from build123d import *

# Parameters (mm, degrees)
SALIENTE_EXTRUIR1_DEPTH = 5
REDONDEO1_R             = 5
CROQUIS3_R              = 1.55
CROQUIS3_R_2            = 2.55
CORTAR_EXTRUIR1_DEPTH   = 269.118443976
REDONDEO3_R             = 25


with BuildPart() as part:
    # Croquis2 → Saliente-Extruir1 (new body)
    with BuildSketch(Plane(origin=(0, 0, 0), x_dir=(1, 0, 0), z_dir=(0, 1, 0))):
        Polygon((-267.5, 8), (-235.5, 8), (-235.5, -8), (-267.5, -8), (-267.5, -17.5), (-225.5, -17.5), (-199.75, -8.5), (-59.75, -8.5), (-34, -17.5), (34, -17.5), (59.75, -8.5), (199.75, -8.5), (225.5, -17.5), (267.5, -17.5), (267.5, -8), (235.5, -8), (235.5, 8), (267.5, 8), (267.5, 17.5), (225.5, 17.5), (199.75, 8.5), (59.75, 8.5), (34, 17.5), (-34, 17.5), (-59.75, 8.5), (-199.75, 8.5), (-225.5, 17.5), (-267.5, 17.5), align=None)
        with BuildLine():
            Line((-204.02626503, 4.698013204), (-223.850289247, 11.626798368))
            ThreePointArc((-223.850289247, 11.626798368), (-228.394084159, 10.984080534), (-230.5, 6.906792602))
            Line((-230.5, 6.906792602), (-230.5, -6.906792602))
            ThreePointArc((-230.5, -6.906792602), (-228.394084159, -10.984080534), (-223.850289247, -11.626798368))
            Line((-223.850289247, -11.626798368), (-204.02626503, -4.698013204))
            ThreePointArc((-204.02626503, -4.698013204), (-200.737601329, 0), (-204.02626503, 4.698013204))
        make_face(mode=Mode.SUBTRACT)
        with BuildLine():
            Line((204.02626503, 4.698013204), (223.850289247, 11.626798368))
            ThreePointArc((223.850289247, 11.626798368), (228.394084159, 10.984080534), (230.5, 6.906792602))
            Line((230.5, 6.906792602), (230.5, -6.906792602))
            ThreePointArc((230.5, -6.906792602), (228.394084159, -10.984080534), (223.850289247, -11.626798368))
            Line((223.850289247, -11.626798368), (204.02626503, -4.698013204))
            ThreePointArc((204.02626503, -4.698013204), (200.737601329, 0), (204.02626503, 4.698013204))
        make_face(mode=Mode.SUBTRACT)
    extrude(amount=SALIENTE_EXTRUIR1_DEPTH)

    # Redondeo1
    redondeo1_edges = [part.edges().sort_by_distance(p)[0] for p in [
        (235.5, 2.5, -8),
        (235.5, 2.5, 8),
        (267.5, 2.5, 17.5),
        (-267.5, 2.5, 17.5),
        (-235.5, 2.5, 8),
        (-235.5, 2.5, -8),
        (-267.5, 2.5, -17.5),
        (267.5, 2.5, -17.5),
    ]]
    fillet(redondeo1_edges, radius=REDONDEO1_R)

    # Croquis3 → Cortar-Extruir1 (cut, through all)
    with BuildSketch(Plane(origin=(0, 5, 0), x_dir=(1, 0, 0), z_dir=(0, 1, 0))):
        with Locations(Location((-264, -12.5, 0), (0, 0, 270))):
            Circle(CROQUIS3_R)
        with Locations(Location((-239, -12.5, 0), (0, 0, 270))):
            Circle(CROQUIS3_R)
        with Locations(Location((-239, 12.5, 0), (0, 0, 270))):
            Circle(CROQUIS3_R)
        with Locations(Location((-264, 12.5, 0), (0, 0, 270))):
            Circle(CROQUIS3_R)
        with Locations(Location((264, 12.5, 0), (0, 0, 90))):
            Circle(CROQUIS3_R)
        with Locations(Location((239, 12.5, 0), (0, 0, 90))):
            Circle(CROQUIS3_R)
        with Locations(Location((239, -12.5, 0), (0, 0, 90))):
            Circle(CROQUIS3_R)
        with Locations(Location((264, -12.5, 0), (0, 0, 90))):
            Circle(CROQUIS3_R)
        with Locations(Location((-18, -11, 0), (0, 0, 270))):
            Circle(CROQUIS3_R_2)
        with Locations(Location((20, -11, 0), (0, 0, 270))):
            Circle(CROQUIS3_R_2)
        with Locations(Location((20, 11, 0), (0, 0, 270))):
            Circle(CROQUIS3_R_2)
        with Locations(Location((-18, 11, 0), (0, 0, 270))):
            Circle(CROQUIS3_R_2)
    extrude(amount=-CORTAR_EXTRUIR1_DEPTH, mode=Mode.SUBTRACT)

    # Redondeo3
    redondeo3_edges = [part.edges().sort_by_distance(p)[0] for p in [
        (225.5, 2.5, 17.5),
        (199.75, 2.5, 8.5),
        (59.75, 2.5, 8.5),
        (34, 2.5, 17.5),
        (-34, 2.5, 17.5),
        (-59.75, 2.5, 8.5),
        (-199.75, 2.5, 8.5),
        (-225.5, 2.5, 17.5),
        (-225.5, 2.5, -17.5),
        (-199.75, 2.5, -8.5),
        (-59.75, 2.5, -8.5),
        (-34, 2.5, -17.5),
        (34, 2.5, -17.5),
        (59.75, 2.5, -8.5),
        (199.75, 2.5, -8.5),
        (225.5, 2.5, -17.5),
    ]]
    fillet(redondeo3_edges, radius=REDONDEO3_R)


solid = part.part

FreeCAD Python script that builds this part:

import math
import FreeCAD as App
import Part
import Sketcher
from FreeCAD import Vector
Q = App.Units.Quantity


def edges_at(feature, points):
    """Names of the edges that pass closest to the given points."""
    edges = feature.Shape.Edges
    near = lambda p: min(range(len(edges)), key=lambda i: edges[i].distToShape(Part.Vertex(*p))[0])
    return sorted({f"Edge{near(p) + 1}" for p in points})


def add_polygon(sketch, points):
    """Adds a closed chain of lines whose ends are joined by coincident constraints."""
    first, n = sketch.GeometryCount, len(points)
    for a, b in zip(points, points[1:] + points[:1]):
        sketch.addGeometry(Part.LineSegment(App.Vector(*a, 0), App.Vector(*b, 0)), False)
    for i in range(n):
        sketch.addConstraint(Sketcher.Constraint("Coincident", first + i, 2, first + (i + 1) % n, 1))

doc = App.newDocument("Part")
body = doc.addObject("PartDesign::Body", "Body")

# Sketch on XZ plane
sketch1 = body.newObject("Sketcher::SketchObject", "Sketch")
sketch1.AttachmentSupport = (doc.getObject("XZ_Plane"), [""])
sketch1.MapMode = "FlatFace"
add_polygon(sketch1, [(-267.5, -8), (-235.5, -8), (-235.5, 8), (-267.5, 8), (-267.5, 17.5), (-225.5, 17.5), (-199.8, 8.5), (-59.8, 8.5), (-34, 17.5), (34, 17.5), (59.8, 8.5), (199.8, 8.5), (225.5, 17.5), (267.5, 17.5), (267.5, 8), (235.5, 8), (235.5, -8), (267.5, -8), (267.5, -17.5), (225.5, -17.5), (199.8, -8.5), (59.8, -8.5), (34, -17.5), (-34, -17.5), (-59.8, -8.5), (-199.8, -8.5), (-225.5, -17.5), (-267.5, -17.5)])  # lines 0-27
sketch1.addGeometry(Part.LineSegment(Vector(-223.9, -11.6, 0), Vector(-204, -4.7, 0)), False)  # 28
sketch1.addGeometry(Part.ArcOfCircle(Part.Circle(Vector(-205.7, 0, 0), Vector(0, 0, 1), 5), math.radians(-70), math.radians(70)), False)  # 29
sketch1.addGeometry(Part.LineSegment(Vector(-204, 4.7, 0), Vector(-223.9, 11.6, 0)), False)  # 30
sketch1.addGeometry(Part.ArcOfCircle(Part.Circle(Vector(-225.5, 6.9, 0), Vector(0, 0, 1), 5), math.radians(71), math.radians(180)), False)  # 31
sketch1.addGeometry(Part.LineSegment(Vector(-230.5, 6.9, 0), Vector(-230.5, -6.9, 0)), False)  # 32
sketch1.addGeometry(Part.ArcOfCircle(Part.Circle(Vector(-225.5, -6.9, 0), Vector(0, 0, 1), 5), math.radians(180), math.radians(289)), False)  # 33
sketch1.addGeometry(Part.ArcOfCircle(Part.Circle(Vector(205.7, 0, 0), Vector(0, 0, 1), 5), math.radians(110), math.radians(250)), False)  # 34
sketch1.addGeometry(Part.LineSegment(Vector(204, -4.7, 0), Vector(223.9, -11.6, 0)), False)  # 35
sketch1.addGeometry(Part.ArcOfCircle(Part.Circle(Vector(225.5, -6.9, 0), Vector(0, 0, 1), 5), math.radians(-109), math.radians(0)), False)  # 36
sketch1.addGeometry(Part.LineSegment(Vector(230.5, -6.9, 0), Vector(230.5, 6.9, 0)), False)  # 37
sketch1.addGeometry(Part.ArcOfCircle(Part.Circle(Vector(225.5, 6.9, 0), Vector(0, 0, 1), 5), math.radians(0), math.radians(109)), False)  # 38
sketch1.addGeometry(Part.LineSegment(Vector(223.9, 11.6, 0), Vector(204, 4.7, 0)), False)  # 39
sketch1.addConstraint(Sketcher.Constraint("Coincident", 28, 2, 29, 1))
sketch1.addConstraint(Sketcher.Constraint("Coincident", 29, 2, 30, 1))
sketch1.addConstraint(Sketcher.Constraint("Tangent", 30, 2, 31, 1))
sketch1.addConstraint(Sketcher.Constraint("Tangent", 31, 2, 32, 1))
sketch1.addConstraint(Sketcher.Constraint("Tangent", 32, 2, 33, 1))
sketch1.addConstraint(Sketcher.Constraint("Tangent", 33, 2, 28, 1))
sketch1.addConstraint(Sketcher.Constraint("Coincident", 34, 2, 35, 1))
sketch1.addConstraint(Sketcher.Constraint("Tangent", 35, 2, 36, 1))
sketch1.addConstraint(Sketcher.Constraint("Tangent", 36, 2, 37, 1))
sketch1.addConstraint(Sketcher.Constraint("Tangent", 37, 2, 38, 1))
sketch1.addConstraint(Sketcher.Constraint("Tangent", 38, 2, 39, 1))
sketch1.addConstraint(Sketcher.Constraint("Coincident", 39, 2, 34, 1))
sketch1.addConstraint(Sketcher.Constraint("Horizontal", 0))
sketch1.addConstraint(Sketcher.Constraint("Vertical", 1))
sketch1.addConstraint(Sketcher.Constraint("Horizontal", 2))
sketch1.addConstraint(Sketcher.Constraint("Vertical", 3))
sketch1.addConstraint(Sketcher.Constraint("Horizontal", 4))
sketch1.addConstraint(Sketcher.Constraint("Horizontal", 6))
sketch1.addConstraint(Sketcher.Constraint("Horizontal", 8))
sketch1.addConstraint(Sketcher.Constraint("Horizontal", 10))
sketch1.addConstraint(Sketcher.Constraint("Horizontal", 12))
sketch1.addConstraint(Sketcher.Constraint("Vertical", 13))
sketch1.addConstraint(Sketcher.Constraint("Horizontal", 14))
sketch1.addConstraint(Sketcher.Constraint("Vertical", 15))
sketch1.addConstraint(Sketcher.Constraint("Horizontal", 16))
sketch1.addConstraint(Sketcher.Constraint("Vertical", 17))
sketch1.addConstraint(Sketcher.Constraint("Horizontal", 18))
sketch1.addConstraint(Sketcher.Constraint("Horizontal", 20))
sketch1.addConstraint(Sketcher.Constraint("Horizontal", 22))
sketch1.addConstraint(Sketcher.Constraint("Horizontal", 24))
sketch1.addConstraint(Sketcher.Constraint("Horizontal", 26))
sketch1.addConstraint(Sketcher.Constraint("Vertical", 27))
sketch1.addConstraint(Sketcher.Constraint("Vertical", 32))
sketch1.addConstraint(Sketcher.Constraint("Vertical", 37))
sketch1.addConstraint(Sketcher.Constraint("Equal", 29, 31))
sketch1.addConstraint(Sketcher.Constraint("Equal", 31, 33))
sketch1.addConstraint(Sketcher.Constraint("Equal", 33, 34))
sketch1.addConstraint(Sketcher.Constraint("Equal", 34, 36))
sketch1.addConstraint(Sketcher.Constraint("Equal", 36, 38))
sketch1.addConstraint(Sketcher.Constraint("Symmetric", 29, 3, 34, 3, -1, 1))
sketch1.addConstraint(Sketcher.Constraint("Symmetric", 31, 3, 36, 3, -1, 1))
sketch1.addConstraint(Sketcher.Constraint("Symmetric", 0, 2, 14, 2, -1, 1))
sketch1.addConstraint(Sketcher.Constraint("Symmetric", 2, 2, 16, 2, -1, 1))
sketch1.addConstraint(Sketcher.Constraint("Symmetric", 4, 2, 18, 2, -1, 1))
sketch1.addConstraint(Sketcher.Constraint("Symmetric", 5, 2, 19, 2, -1, 1))
sketch1.addConstraint(Sketcher.Constraint("Symmetric", 7, 2, 21, 2, -1, 1))
sketch1.addConstraint(Sketcher.Constraint("Symmetric", 9, 2, 23, 2, -1, 1))
sketch1.addConstraint(Sketcher.Constraint("Symmetric", 11, 2, 25, 2, -1, 1))
sketch1.addConstraint(Sketcher.Constraint("Symmetric", 33, 2, 38, 2, -1, 1))
sketch1.addConstraint(Sketcher.Constraint("Symmetric", 6, 2, 9, 2, -2))
sketch1.addConstraint(Sketcher.Constraint("Symmetric", 4, 2, 11, 2, -2))
sketch1.addConstraint(Sketcher.Constraint("Symmetric", 2, 2, 13, 2, -2))
sketch1.addConstraint(Sketcher.Constraint("Symmetric", 28, 2, 34, 2, -2))
sketch1.addConstraint(Sketcher.Constraint("Symmetric", 30, 2, 38, 2, -2))
sketch1.addConstraint(Sketcher.Constraint("Parallel", 5, 9))
sketch1.addConstraint(Sketcher.Constraint("Parallel", 7, 11))
sketch1.addConstraint(Sketcher.Constraint("Parallel", 11, 21))
sketch1.addConstraint(Sketcher.Constraint("Parallel", 19, 23))
sketch1.addConstraint(Sketcher.Constraint("Parallel", 21, 25))
sketch1.addConstraint(Sketcher.Constraint("Parallel", 25, 28))
sketch1.addConstraint(Sketcher.Constraint("Parallel", 23, 30))
sketch1.addConstraint(Sketcher.Constraint("Horizontal", 4, 2, 7, 2))
sketch1.addConstraint(Sketcher.Constraint("Vertical", 33, 3, 4, 2))
sketch1.addConstraint(Sketcher.Constraint("Vertical", 3, 2, 26, 2))
sketch1.addConstraint(Sketcher.Constraint("Radius", 29, Q("5 mm")))
sketch1.addConstraint(Sketcher.Constraint("DistanceX", 0, 1, 0, 2, Q("32 mm")))
sketch1.addConstraint(Sketcher.Constraint("DistanceX", 4, 1, 4, 2, Q("42 mm")))
sketch1.addConstraint(Sketcher.Constraint("DistanceX", 6, 1, 6, 2, Q("140 mm")))
sketch1.addConstraint(Sketcher.Constraint("DistanceX", 8, 1, 8, 2, Q("68 mm")))
sketch1.addConstraint(Sketcher.Constraint("DistanceY", 1, 1, 1, 2, Q("16 mm")))
sketch1.addConstraint(Sketcher.Constraint("Distance", 28, Q("21 mm")))
sketch1.addConstraint(Sketcher.Constraint("DistanceY", 3, 1, 3, 2, Q("9.5 mm")))
sketch1.addConstraint(Sketcher.Constraint("DistanceX", 33, 3, 36, 3, Q("451 mm")))
sketch1.addConstraint(Sketcher.Constraint("DistanceY", 5, 2, 4, 2, Q("9 mm")))
sketch1.addConstraint(Sketcher.Constraint("DistanceX", 29, 3, -1, 1, Q("205.737601 mm")))
pad1 = body.newObject("PartDesign::Pad", "Pad")
pad1.Profile = sketch1
pad1.Length = 5
pad1.Reversed = True
doc.recompute()

fillet = body.newObject("PartDesign::Fillet", "Fillet")
fillet.Base = (pad1, edges_at(pad1, [
    (235.5, 2.5, -8),
    (235.5, 2.5, 8),
    (267.5, 2.5, 17.5),
    (-267.5, 2.5, 17.5),
    (-235.5, 2.5, 8),
    (-235.5, 2.5, -8),
    (-267.5, 2.5, -17.5),
    (267.5, 2.5, -17.5),
]))
fillet.Radius = 5

# Sketch on XZ plane
sketch2 = body.newObject("Sketcher::SketchObject", "Sketch001")
sketch2.AttachmentSupport = (doc.getObject("XZ_Plane"), [""])
sketch2.MapMode = "FlatFace"
sketch2.AttachmentOffset = App.Placement(Vector(0, 0, -5), App.Rotation())
sketch2.addGeometry(Part.Circle(Vector(-264, 12.5, 0), Vector(0, 0, 1), 1.6), False)
sketch2.addGeometry(Part.Circle(Vector(-239, 12.5, 0), Vector(0, 0, 1), 1.6), False)
sketch2.addGeometry(Part.Circle(Vector(-239, -12.5, 0), Vector(0, 0, 1), 1.6), False)
sketch2.addGeometry(Part.Circle(Vector(-264, -12.5, 0), Vector(0, 0, 1), 1.6), False)
sketch2.addGeometry(Part.Circle(Vector(264, -12.5, 0), Vector(0, 0, 1), 1.6), False)
sketch2.addGeometry(Part.Circle(Vector(239, -12.5, 0), Vector(0, 0, 1), 1.6), False)
sketch2.addGeometry(Part.Circle(Vector(239, 12.5, 0), Vector(0, 0, 1), 1.6), False)
sketch2.addGeometry(Part.Circle(Vector(264, 12.5, 0), Vector(0, 0, 1), 1.6), False)
sketch2.addGeometry(Part.Circle(Vector(-18, 11, 0), Vector(0, 0, 1), 2.5), False)
sketch2.addGeometry(Part.Circle(Vector(20, 11, 0), Vector(0, 0, 1), 2.5), False)
sketch2.addGeometry(Part.Circle(Vector(20, -11, 0), Vector(0, 0, 1), 2.5), False)
sketch2.addGeometry(Part.Circle(Vector(-18, -11, 0), Vector(0, 0, 1), 2.5), False)
sketch2.addConstraint(Sketcher.Constraint("Equal", 0, 1))
sketch2.addConstraint(Sketcher.Constraint("Equal", 1, 2))
sketch2.addConstraint(Sketcher.Constraint("Equal", 2, 3))
sketch2.addConstraint(Sketcher.Constraint("Equal", 3, 4))
sketch2.addConstraint(Sketcher.Constraint("Equal", 4, 5))
sketch2.addConstraint(Sketcher.Constraint("Equal", 5, 6))
sketch2.addConstraint(Sketcher.Constraint("Equal", 6, 7))
sketch2.addConstraint(Sketcher.Constraint("Equal", 8, 9))
sketch2.addConstraint(Sketcher.Constraint("Equal", 9, 10))
sketch2.addConstraint(Sketcher.Constraint("Equal", 10, 11))
sketch2.addConstraint(Sketcher.Constraint("Symmetric", 0, 3, 4, 3, -1, 1))
sketch2.addConstraint(Sketcher.Constraint("Symmetric", 1, 3, 5, 3, -1, 1))
sketch2.addConstraint(Sketcher.Constraint("Symmetric", 2, 3, 6, 3, -1, 1))
sketch2.addConstraint(Sketcher.Constraint("Symmetric", 3, 3, 7, 3, -1, 1))
sketch2.addConstraint(Sketcher.Constraint("Symmetric", 3, 3, 4, 3, -2))
sketch2.addConstraint(Sketcher.Constraint("Symmetric", 2, 3, 5, 3, -2))
sketch2.addConstraint(Sketcher.Constraint("Symmetric", 9, 3, 10, 3, -1))
sketch2.addConstraint(Sketcher.Constraint("Symmetric", 8, 3, 11, 3, -1))
sketch2.addConstraint(Sketcher.Constraint("Horizontal", 0, 3, 1, 3))
sketch2.addConstraint(Sketcher.Constraint("Horizontal", 8, 3, 9, 3))
sketch2.addConstraint(Sketcher.Constraint("Diameter", 0, Q("3.1 mm")))
sketch2.addConstraint(Sketcher.Constraint("Diameter", 8, Q("5.1 mm")))
sketch2.addConstraint(Sketcher.Constraint("DistanceX", 0, 3, -1, 1, Q("264 mm")))
sketch2.addConstraint(Sketcher.Constraint("DistanceX", 1, 3, -1, 1, Q("239 mm")))
sketch2.addConstraint(Sketcher.Constraint("DistanceX", 8, 3, -1, 1, Q("18 mm")))
sketch2.addConstraint(Sketcher.Constraint("DistanceY", -1, 1, 8, 3, Q("11 mm")))
sketch2.addConstraint(Sketcher.Constraint("DistanceX", -1, 1, 9, 3, Q("20 mm")))
sketch2.addConstraint(Sketcher.Constraint("DistanceY", 2, 3, 1, 3, Q("25 mm")))
pocket1 = body.newObject("PartDesign::Pocket", "Pocket")
pocket1.Profile = sketch2
pocket1.Type = "ThroughAll"
pocket1.Reversed = True
doc.recompute()

fillet2 = body.newObject("PartDesign::Fillet", "Fillet001")
fillet2.Base = (pocket1, edges_at(pocket1, [
    (225.5, 2.5, 17.5),
    (199.75, 2.5, 8.5),
    (59.75, 2.5, 8.5),
    (34, 2.5, 17.5),
    (-34, 2.5, 17.5),
    (-59.75, 2.5, 8.5),
    (-199.75, 2.5, 8.5),
    (-225.5, 2.5, 17.5),
    (-225.5, 2.5, -17.5),
    (-199.75, 2.5, -8.5),
    (-59.75, 2.5, -8.5),
    (-34, 2.5, -17.5),
    (34, 2.5, -17.5),
    (59.75, 2.5, -8.5),
    (199.75, 2.5, -8.5),
    (225.5, 2.5, -17.5),
]))
fillet2.Radius = 25

doc.recompute()
